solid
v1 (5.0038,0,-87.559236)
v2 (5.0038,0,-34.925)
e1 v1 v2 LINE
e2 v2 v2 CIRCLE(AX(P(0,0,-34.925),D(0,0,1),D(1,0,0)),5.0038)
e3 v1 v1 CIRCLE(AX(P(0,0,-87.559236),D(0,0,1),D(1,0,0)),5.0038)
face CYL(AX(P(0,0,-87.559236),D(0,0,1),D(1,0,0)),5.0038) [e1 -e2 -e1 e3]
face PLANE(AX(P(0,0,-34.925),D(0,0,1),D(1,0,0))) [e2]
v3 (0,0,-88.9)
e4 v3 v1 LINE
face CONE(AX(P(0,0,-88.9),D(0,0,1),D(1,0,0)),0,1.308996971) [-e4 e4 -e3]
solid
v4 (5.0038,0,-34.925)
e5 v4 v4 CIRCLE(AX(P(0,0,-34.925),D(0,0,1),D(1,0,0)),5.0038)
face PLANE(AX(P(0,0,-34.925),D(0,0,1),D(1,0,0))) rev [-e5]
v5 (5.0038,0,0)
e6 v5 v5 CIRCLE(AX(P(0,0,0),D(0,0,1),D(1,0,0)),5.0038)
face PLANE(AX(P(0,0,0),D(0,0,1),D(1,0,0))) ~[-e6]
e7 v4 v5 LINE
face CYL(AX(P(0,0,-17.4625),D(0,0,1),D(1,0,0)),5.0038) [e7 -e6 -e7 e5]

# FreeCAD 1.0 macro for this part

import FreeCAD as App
import Part
import Sketcher

V = App.Vector
Q = App.Units.Quantity


def add_polygon(sketch, points):
    """Adds a closed chain of lines whose ends are joined by coincident constraints."""
    first, n = sketch.GeometryCount, len(points)
    for a, b in zip(points, points[1:] + points[:1]):
        sketch.addGeometry(Part.LineSegment(App.Vector(*a, 0), App.Vector(*b, 0)), False)
    for i in range(n):
        sketch.addConstraint(Sketcher.Constraint("Coincident", first + i, 2, first + (i + 1) % n, 1))

doc = App.newDocument("Part")
body = doc.addObject("PartDesign::Body", "Body")

# Sketch on XZ plane
sketch1 = body.newObject("Sketcher::SketchObject", "Sketch")
sketch1.AttachmentSupport = (doc.getObject("XZ_Plane"), [""])
sketch1.MapMode = "FlatFace"
add_polygon(sketch1, [(0, 0), (0, -35), (5, -35), (5, 0)])  # lines 0-3
sketch1.addConstraint([
    Sketcher.Constraint("Vertical", 0),
    Sketcher.Constraint("Horizontal", 1),
    Sketcher.Constraint("Vertical", 2),
    Sketcher.Constraint("Horizontal", 3),
    Sketcher.Constraint("Coincident", 3, 2, -1, 1),
    Sketcher.Constraint("DistanceX", 1, 1, 1, 2, Q("0.197 in")),
    Sketcher.Constraint("DistanceY", 0, 2, 0, 1, Q("1.375 in")),
])
revolution = body.newObject("PartDesign::Revolution", "Revolution")
revolution.Profile = sketch1
revolution.ReferenceAxis = (sketch1, ["V_Axis"])
revolution.Angle = 360
body2 = doc.addObject("PartDesign::Body", "Body001")

# Sketch on XZ plane
sketch2 = body2.newObject("Sketcher::SketchObject", "Sketch001")
sketch2.AttachmentSupport = (doc.getObject("XZ_Plane001"), [""])
sketch2.MapMode = "FlatFace"
add_polygon(sketch2, [(5, -35), (0, -35), (0, -89), (5, -88)])  # lines 0-3
sketch2.addConstraint([
    Sketcher.Constraint("Horizontal", 0),
    Sketcher.Constraint("Vertical", 1),
    Sketcher.Constraint("Vertical", 3),
    Sketcher.Constraint("PointOnObject", 0, 2, -2),
    Sketcher.Constraint("Angle", 2, Q("14.999998 deg")),
    Sketcher.Constraint("DistanceY", 1, 2, -1, 1, Q("3.5 in")),
    Sketcher.Constraint("DistanceX", 0, 2, 0, 1, Q("0.197 in")),
    Sketcher.Constraint("DistanceY", 1, 2, 1, 1, Q("2.125 in")),
])
revolution2 = body2.newObject("PartDesign::Revolution", "Revolution001")
revolution2.Profile = sketch2
revolution2.ReferenceAxis = (sketch2, ["V_Axis"])
revolution2.Angle = 360

doc.recompute()
